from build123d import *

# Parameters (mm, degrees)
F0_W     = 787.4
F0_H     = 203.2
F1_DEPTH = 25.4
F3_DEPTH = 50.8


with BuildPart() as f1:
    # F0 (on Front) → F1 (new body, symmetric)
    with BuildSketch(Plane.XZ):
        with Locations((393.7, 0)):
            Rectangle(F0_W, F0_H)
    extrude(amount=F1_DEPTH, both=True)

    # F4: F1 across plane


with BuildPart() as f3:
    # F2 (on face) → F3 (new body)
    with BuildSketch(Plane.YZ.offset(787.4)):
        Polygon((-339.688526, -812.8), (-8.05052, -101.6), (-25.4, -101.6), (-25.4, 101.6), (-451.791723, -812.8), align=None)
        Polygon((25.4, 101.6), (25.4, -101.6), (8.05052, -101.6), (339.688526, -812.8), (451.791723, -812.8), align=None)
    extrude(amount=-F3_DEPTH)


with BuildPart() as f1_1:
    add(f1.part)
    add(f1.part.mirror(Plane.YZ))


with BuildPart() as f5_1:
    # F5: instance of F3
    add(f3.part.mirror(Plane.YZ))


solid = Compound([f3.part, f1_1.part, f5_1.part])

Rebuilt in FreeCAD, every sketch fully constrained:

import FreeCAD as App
import Part
import Sketcher
from FreeCAD import Vector
Q = App.Units.Quantity

doc = App.newDocument("Part")
body = doc.addObject("PartDesign::Body", "Body")

# Sketch on XZ plane
sketch1 = body.newObject("Sketcher::SketchObject", "Sketch")
sketch1.AttachmentSupport = (doc.getObject("XZ_Plane"), [""])
sketch1.MapMode = "FlatFace"
sketch1.addGeometry(Part.LineSegment(Vector(0, 102, 0), Vector(0, -102, 0)), False)
sketch1.addGeometry(Part.LineSegment(Vector(0, -102, 0), Vector(787, -102, 0)), False)
sketch1.addGeometry(Part.LineSegment(Vector(787, -102, 0), Vector(787, 102, 0)), False)
sketch1.addGeometry(Part.LineSegment(Vector(787, 102, 0), Vector(0, 102, 0)), False)
sketch1.addConstraint(Sketcher.Constraint("Coincident", 0, 2, 1, 1))
sketch1.addConstraint(Sketcher.Constraint("Coincident", 1, 2, 2, 1))
sketch1.addConstraint(Sketcher.Constraint("Coincident", 2, 2, 3, 1))
sketch1.addConstraint(Sketcher.Constraint("Coincident", 3, 2, 0, 1))
sketch1.addConstraint(Sketcher.Constraint("Vertical", 0))
sketch1.addConstraint(Sketcher.Constraint("Horizontal", 1))
sketch1.addConstraint(Sketcher.Constraint("Vertical", 2))
sketch1.addConstraint(Sketcher.Constraint("Horizontal", 3))
sketch1.addConstraint(Sketcher.Constraint("Symmetric", 0, 2, 3, 2, -1, 1))
sketch1.addConstraint(Sketcher.Constraint("DistanceX", 1, 1, 1, 2, Q("31 in")))
sketch1.addConstraint(Sketcher.Constraint("DistanceY", 0, 2, 0, 1, Q("8 in")))
pad1 = body.newObject("PartDesign::Pad", "Pad")
pad1.Profile = sketch1
pad1.Length = Q("2 in")
pad1.Midplane = True
body2 = doc.addObject("PartDesign::Body", "Body001")
body2.AllowCompound = True

# Sketch on YZ plane
sketch2 = body2.newObject("Sketcher::SketchObject", "Sketch001")
sketch2.AttachmentSupport = (doc.getObject("YZ_Plane001"), [""])
sketch2.MapMode = "FlatFace"
sketch2.AttachmentOffset = App.Placement(Vector(0, 0, 31 * 25.4), App.Rotation())
sketch2.addGeometry(Part.LineSegment(Vector(-340, -813, 0), Vector(-8, -102, 0)), False)
sketch2.addGeometry(Part.LineSegment(Vector(-8, -102, 0), Vector(-25, -102, 0)), False)
sketch2.addGeometry(Part.LineSegment(Vector(-25, -102, 0), Vector(-25, 102, 0)), False)
sketch2.addGeometry(Part.LineSegment(Vector(-25, 102, 0), Vector(-452, -813, 0)), False)
sketch2.addGeometry(Part.LineSegment(Vector(-452, -813, 0), Vector(-340, -813, 0)), False)
sketch2.addGeometry(Part.LineSegment(Vector(25, 102, 0), Vector(25, -102, 0)), False)
sketch2.addGeometry(Part.LineSegment(Vector(25, -102, 0), Vector(8, -102, 0)), False)
sketch2.addGeometry(Part.LineSegment(Vector(8, -102, 0), Vector(340, -813, 0)), False)
sketch2.addGeometry(Part.LineSegment(Vector(340, -813, 0), Vector(452, -813, 0)), False)
sketch2.addGeometry(Part.LineSegment(Vector(452, -813, 0), Vector(25, 102, 0)), False)
sketch2.addConstraint(Sketcher.Constraint("Coincident", 0, 2, 1, 1))
sketch2.addConstraint(Sketcher.Constraint("Coincident", 1, 2, 2, 1))
sketch2.addConstraint(Sketcher.Constraint("Coincident", 2, 2, 3, 1))
sketch2.addConstraint(Sketcher.Constraint("Coincident", 3, 2, 4, 1))
sketch2.addConstraint(Sketcher.Constraint("Coincident", 4, 2, 0, 1))
sketch2.addConstraint(Sketcher.Constraint("Coincident", 5, 2, 6, 1))
sketch2.addConstraint(Sketcher.Constraint("Coincident", 6, 2, 7, 1))
sketch2.addConstraint(Sketcher.Constraint("Coincident", 7, 2, 8, 1))
sketch2.addConstraint(Sketcher.Constraint("Coincident", 8, 2, 9, 1))
sketch2.addConstraint(Sketcher.Constraint("Coincident", 9, 2, 5, 1))
sketch2.addConstraint(Sketcher.Constraint("Horizontal", 1))
sketch2.addConstraint(Sketcher.Constraint("Vertical", 2))
sketch2.addConstraint(Sketcher.Constraint("Horizontal", 4))
sketch2.addConstraint(Sketcher.Constraint("Vertical", 5))
sketch2.addConstraint(Sketcher.Constraint("Horizontal", 6))
sketch2.addConstraint(Sketcher.Constraint("Horizontal", 8))
sketch2.addConstraint(Sketcher.Constraint("Symmetric", 2, 2, 5, 2, -1, 1))
sketch2.addConstraint(Sketcher.Constraint("Symmetric", 0, 2, 6, 2, -2))
sketch2.addConstraint(Sketcher.Constraint("Symmetric", 4, 2, 7, 2, -2))
sketch2.addConstraint(Sketcher.Constraint("Parallel", 0, 3))
sketch2.addConstraint(Sketcher.Constraint("Parallel", 7, 9))
sketch2.addConstraint(Sketcher.Constraint("Horizontal", 2, 2, 9, 2))
sketch2.addConstraint(Sketcher.Constraint("DistanceY", 2, 1, 2, 2, Q("8 in")))
sketch2.addConstraint(Sketcher.Constraint("DistanceX", 1, 2, -1, 1, Q("1 in")))
sketch2.addConstraint(Sketcher.Constraint("DistanceY", 3, 2, -1, 1, Q("32 in")))
sketch2.addConstraint(Sketcher.Constraint("Angle", 0, Q("65 deg")))
sketch2.addConstraint(Sketcher.Constraint("DistanceX", 1, 2, 1, 1, Q("17.34948 mm")))
pad2 = body2.newObject("PartDesign::Pad", "Pad001")
pad2.Profile = sketch2
pad2.Length = Q("2 in")
pad2.Reversed = True
body3 = doc.addObject("PartDesign::Body", "Body002")
doc.recompute()

body3.BaseFeature = body
doc.recompute()

mirroring = doc.addObject("Part::Mirroring", "Mirroring")
mirroring.Source = body
mirroring.Base = Vector(0, 0, 0)
mirroring.Normal = Vector(1, 0, 0)
body4 = doc.addObject("PartDesign::Body", "Body003")
body4.BaseFeature = mirroring
boolean = body3.newObject("PartDesign::Boolean", "Boolean")
boolean.Type = "Fuse"
boolean.addObjects([body4])
doc.recompute()
body5 = doc.addObject("PartDesign::Body", "Body004")
body5.AllowCompound = True
doc.recompute()

mirroring2 = doc.addObject("Part::Mirroring", "Mirroring001")
mirroring2.Source = body2
mirroring2.Base = Vector(0, 0, 0)
mirroring2.Normal = Vector(1, 0, 0)
body5.BaseFeature = mirroring2
doc.recompute()
mirroring.Visibility = False
mirroring2.Visibility = False

doc.recompute()
